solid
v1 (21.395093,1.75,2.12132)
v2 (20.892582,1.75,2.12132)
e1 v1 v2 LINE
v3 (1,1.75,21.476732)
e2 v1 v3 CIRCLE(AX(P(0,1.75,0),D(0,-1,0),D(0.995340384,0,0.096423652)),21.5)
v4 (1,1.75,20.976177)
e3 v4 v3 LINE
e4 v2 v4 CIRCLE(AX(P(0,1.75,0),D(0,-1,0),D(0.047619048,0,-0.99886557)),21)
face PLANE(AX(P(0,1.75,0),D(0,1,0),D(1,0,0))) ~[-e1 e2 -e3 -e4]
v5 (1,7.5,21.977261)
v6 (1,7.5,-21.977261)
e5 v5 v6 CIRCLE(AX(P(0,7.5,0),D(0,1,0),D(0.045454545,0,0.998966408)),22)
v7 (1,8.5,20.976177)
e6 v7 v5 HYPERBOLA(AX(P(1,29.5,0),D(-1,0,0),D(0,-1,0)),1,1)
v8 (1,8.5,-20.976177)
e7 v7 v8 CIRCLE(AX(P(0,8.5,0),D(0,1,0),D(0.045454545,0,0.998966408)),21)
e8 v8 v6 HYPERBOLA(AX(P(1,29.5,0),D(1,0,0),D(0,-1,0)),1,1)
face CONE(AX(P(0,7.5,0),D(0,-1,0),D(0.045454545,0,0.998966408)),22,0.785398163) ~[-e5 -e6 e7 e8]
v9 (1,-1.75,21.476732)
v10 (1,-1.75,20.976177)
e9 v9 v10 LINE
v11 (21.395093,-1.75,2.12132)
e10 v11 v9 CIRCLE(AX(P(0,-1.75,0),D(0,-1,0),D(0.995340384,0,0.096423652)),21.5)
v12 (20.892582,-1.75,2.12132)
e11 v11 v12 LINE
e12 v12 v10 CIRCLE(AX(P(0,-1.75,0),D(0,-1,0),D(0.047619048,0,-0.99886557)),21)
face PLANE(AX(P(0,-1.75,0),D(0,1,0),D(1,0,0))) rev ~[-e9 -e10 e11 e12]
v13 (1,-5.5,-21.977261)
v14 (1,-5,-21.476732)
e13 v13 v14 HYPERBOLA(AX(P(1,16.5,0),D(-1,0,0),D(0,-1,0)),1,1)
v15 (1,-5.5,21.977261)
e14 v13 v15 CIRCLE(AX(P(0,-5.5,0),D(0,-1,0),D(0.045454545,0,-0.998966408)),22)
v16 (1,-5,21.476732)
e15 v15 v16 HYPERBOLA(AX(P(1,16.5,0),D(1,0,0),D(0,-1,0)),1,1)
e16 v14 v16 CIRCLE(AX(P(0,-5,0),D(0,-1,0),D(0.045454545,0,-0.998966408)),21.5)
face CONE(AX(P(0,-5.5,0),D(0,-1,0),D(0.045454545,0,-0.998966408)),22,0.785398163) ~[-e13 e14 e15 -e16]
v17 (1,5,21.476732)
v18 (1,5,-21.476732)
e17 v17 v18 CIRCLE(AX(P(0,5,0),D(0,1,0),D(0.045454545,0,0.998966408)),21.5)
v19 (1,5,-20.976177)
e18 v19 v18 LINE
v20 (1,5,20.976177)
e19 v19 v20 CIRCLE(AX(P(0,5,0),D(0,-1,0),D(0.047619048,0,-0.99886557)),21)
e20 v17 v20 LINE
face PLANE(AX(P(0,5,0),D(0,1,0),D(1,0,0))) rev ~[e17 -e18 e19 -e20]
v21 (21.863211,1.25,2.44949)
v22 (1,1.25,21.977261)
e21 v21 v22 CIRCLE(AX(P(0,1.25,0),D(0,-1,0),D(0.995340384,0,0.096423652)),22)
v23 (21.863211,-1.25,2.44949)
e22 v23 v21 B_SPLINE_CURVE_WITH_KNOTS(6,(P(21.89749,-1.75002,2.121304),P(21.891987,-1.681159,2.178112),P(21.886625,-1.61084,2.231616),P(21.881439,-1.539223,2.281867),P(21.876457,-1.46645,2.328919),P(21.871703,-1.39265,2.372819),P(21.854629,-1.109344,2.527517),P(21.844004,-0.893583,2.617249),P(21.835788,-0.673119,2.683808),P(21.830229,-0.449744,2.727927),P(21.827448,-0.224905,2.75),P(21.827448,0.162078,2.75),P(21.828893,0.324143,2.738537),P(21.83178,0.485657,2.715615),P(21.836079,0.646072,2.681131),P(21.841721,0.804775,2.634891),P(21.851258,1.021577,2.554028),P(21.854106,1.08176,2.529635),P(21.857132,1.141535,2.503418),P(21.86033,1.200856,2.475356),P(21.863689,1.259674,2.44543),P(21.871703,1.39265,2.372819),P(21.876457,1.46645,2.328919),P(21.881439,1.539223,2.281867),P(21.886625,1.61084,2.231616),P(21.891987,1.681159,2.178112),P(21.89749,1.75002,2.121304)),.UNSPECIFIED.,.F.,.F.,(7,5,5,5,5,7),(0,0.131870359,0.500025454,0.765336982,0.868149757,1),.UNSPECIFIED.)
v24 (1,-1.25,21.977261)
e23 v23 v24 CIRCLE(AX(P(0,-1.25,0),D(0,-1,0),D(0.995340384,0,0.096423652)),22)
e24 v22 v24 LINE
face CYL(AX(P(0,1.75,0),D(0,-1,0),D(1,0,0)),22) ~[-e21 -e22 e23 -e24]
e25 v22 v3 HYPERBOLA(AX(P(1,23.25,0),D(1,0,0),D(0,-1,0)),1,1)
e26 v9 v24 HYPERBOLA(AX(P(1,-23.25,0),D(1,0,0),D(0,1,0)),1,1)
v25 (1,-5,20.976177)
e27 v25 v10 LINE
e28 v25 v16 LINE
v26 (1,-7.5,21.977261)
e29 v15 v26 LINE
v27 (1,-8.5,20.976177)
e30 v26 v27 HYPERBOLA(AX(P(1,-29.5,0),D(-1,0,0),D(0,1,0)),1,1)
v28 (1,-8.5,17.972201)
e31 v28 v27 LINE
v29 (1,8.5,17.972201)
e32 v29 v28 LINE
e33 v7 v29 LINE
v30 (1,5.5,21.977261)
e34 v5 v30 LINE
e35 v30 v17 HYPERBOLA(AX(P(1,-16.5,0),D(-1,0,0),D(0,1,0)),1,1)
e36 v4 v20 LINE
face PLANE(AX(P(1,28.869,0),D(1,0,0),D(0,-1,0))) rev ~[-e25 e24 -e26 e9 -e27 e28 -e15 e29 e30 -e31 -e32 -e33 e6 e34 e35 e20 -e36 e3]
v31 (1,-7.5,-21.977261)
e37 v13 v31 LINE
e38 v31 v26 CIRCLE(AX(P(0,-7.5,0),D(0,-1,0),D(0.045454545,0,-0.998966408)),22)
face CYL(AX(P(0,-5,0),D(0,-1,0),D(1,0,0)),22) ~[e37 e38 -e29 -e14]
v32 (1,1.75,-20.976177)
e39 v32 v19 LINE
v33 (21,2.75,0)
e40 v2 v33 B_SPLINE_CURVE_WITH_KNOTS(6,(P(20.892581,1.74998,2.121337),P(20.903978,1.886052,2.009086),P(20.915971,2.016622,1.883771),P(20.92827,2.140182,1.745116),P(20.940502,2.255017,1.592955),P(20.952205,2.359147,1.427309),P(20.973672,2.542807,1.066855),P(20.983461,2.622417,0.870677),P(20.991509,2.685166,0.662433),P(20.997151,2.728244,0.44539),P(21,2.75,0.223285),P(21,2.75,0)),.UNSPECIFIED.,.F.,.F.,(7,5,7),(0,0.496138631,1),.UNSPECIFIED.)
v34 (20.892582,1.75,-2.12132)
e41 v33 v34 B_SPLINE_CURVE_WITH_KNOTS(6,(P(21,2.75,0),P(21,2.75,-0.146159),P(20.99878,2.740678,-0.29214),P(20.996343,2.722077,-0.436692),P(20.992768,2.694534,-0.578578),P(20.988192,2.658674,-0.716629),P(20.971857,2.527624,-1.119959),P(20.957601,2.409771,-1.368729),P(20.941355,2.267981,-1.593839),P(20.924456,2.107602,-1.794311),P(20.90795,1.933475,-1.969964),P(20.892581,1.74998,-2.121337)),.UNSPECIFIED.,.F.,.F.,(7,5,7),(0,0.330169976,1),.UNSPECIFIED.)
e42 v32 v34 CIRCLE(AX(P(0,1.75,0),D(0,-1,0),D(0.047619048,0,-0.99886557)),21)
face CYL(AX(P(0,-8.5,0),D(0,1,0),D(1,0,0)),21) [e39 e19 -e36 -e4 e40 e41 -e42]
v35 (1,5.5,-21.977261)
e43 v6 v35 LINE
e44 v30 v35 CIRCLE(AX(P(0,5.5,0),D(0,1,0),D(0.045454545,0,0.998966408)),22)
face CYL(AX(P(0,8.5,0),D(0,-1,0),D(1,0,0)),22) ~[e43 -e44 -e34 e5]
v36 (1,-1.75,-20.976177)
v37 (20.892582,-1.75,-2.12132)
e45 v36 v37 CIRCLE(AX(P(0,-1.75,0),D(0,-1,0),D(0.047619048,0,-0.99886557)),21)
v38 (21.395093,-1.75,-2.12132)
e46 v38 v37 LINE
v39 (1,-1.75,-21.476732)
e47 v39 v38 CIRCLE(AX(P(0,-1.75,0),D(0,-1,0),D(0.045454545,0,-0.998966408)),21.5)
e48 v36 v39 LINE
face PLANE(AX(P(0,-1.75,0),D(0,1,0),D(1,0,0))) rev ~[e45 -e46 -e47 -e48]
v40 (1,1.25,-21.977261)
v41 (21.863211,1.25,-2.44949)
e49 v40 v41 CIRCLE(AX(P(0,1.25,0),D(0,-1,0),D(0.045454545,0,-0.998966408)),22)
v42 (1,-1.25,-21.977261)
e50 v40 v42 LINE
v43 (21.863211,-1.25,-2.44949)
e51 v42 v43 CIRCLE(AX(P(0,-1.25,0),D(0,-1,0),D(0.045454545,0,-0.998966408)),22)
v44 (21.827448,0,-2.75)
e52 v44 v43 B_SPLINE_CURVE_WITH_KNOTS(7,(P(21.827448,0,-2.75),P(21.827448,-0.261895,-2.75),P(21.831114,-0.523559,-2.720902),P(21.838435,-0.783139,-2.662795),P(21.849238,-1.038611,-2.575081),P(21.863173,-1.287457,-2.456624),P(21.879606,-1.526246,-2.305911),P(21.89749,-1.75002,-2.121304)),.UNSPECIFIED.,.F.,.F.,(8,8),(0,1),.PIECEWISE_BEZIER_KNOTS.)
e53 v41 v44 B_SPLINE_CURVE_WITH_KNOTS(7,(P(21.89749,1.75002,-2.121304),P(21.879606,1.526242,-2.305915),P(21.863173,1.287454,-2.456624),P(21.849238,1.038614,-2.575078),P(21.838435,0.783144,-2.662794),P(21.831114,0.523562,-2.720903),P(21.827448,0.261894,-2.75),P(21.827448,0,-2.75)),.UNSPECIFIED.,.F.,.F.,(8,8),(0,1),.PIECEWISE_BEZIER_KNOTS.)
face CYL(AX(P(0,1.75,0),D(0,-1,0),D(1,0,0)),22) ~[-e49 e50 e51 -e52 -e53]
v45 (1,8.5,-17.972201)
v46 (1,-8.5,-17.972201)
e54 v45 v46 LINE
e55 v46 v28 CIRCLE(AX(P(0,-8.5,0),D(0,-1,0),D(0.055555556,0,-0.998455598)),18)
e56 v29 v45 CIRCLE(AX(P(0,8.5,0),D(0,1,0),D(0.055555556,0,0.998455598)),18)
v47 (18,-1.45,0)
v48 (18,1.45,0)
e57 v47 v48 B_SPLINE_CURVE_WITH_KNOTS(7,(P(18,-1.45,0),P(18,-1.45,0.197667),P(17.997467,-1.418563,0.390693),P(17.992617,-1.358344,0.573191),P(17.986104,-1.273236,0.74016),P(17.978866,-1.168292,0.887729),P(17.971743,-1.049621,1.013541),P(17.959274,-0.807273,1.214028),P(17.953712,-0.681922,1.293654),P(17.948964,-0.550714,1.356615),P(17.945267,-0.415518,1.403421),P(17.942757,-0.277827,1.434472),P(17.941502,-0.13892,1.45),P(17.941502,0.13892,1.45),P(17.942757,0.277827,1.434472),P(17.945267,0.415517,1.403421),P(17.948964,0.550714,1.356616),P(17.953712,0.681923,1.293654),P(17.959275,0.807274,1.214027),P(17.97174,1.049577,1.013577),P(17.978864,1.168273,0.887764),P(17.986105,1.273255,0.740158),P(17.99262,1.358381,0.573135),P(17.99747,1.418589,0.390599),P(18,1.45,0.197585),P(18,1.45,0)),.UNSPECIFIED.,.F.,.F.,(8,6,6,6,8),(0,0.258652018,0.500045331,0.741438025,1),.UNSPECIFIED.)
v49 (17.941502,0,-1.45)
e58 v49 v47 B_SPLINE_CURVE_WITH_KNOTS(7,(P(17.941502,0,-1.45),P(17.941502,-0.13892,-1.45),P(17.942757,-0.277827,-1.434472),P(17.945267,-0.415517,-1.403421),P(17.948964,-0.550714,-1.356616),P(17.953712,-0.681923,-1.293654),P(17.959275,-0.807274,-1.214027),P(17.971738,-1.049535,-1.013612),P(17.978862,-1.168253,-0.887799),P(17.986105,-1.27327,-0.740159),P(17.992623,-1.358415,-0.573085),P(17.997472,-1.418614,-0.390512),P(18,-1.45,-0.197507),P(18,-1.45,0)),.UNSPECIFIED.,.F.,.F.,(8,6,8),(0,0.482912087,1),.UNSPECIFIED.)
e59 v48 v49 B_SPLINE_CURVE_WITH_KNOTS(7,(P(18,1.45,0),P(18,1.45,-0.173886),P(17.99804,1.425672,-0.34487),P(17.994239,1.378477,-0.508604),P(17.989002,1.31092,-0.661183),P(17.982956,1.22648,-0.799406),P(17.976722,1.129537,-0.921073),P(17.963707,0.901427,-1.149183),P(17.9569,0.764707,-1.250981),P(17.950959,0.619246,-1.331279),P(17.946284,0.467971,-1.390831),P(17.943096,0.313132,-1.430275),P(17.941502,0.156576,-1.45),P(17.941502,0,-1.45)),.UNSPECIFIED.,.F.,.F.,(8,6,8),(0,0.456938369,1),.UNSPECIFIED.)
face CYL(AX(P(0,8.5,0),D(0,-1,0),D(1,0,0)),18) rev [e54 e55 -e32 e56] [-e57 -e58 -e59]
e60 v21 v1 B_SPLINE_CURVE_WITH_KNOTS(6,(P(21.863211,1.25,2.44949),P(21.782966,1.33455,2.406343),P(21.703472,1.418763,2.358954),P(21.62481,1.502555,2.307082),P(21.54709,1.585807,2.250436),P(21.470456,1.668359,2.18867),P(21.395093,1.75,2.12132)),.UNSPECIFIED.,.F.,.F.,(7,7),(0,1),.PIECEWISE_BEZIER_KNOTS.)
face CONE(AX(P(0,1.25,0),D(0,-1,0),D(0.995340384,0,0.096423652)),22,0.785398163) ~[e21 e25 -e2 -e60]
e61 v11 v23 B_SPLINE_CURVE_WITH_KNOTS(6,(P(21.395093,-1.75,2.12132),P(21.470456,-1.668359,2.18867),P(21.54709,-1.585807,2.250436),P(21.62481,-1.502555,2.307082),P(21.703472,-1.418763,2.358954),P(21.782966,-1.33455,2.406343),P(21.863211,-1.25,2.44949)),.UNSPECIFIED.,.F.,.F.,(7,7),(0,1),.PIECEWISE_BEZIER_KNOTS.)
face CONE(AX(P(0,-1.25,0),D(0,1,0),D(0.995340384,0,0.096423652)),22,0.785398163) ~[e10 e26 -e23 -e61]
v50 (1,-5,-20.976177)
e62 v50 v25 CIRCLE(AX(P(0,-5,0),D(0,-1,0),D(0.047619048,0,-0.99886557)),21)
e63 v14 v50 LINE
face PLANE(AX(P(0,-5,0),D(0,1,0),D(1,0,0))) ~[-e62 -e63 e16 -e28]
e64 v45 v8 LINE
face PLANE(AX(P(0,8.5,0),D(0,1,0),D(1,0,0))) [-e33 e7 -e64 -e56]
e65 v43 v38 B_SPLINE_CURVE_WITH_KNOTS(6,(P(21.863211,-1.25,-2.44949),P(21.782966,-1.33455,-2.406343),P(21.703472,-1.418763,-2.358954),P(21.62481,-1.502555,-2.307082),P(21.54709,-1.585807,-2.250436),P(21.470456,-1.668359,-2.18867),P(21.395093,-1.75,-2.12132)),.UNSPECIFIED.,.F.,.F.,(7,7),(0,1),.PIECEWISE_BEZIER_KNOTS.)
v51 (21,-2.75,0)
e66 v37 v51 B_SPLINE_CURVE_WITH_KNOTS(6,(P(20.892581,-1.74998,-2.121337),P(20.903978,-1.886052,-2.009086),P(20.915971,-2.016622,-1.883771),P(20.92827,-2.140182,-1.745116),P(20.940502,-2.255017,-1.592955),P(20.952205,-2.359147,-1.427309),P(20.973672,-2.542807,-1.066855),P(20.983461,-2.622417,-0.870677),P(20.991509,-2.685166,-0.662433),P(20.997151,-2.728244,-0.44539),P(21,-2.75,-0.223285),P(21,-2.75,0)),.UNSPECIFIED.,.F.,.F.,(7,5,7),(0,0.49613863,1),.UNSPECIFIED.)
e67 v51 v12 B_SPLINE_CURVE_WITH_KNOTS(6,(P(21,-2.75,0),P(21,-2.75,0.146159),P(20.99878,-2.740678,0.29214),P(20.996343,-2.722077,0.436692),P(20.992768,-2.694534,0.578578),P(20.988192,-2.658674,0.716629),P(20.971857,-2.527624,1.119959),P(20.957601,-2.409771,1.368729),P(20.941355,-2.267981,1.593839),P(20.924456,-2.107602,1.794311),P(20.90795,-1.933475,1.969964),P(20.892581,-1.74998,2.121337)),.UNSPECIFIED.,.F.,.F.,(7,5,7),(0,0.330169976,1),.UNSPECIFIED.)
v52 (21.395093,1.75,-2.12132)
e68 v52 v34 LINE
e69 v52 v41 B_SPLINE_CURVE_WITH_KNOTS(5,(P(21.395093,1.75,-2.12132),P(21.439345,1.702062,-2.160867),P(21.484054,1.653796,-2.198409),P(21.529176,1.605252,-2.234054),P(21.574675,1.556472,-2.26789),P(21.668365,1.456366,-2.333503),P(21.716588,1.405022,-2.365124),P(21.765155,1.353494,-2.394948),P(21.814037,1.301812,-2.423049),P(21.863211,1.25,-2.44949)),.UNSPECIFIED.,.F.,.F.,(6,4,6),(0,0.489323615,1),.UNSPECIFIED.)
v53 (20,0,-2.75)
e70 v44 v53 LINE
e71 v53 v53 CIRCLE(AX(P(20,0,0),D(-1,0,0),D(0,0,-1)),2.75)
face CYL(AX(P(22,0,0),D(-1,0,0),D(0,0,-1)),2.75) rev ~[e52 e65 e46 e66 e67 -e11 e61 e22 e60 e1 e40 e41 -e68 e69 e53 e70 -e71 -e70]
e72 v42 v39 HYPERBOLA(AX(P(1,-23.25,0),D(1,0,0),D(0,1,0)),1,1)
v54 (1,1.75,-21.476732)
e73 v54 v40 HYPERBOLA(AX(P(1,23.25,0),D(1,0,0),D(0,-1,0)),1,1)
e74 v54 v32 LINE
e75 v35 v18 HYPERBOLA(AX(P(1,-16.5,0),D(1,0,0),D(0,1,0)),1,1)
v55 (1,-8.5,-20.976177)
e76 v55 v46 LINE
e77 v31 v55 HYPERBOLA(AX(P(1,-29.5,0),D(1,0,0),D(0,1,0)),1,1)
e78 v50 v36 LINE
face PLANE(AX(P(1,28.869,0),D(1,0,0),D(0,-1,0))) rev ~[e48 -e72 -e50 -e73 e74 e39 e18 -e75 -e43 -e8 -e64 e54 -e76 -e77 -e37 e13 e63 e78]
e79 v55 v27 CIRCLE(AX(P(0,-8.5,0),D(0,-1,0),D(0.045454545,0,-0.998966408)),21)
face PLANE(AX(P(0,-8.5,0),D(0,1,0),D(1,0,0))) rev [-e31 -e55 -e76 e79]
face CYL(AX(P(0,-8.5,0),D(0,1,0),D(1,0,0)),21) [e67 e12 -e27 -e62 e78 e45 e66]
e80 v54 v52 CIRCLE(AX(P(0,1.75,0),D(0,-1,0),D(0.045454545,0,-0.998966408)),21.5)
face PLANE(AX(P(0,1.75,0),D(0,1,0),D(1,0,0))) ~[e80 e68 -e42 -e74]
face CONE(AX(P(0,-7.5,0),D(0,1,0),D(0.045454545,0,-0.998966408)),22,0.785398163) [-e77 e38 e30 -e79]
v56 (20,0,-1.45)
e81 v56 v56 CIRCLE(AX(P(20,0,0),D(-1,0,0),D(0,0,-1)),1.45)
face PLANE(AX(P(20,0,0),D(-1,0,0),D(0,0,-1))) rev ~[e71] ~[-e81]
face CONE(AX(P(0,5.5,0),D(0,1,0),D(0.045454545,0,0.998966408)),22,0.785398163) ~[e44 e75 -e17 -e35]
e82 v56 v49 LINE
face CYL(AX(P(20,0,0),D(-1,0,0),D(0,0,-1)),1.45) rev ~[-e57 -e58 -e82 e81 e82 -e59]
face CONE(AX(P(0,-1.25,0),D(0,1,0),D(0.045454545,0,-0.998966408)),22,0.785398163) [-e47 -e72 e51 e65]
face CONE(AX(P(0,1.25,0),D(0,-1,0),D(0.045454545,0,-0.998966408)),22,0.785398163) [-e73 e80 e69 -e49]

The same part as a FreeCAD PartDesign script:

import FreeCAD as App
import Part
import Sketcher

V = App.Vector


def edges_at(feature, points):
    """Names of the edges that pass closest to the given points."""
    edges = feature.Shape.Edges
    near = lambda p: min(range(len(edges)), key=lambda i: edges[i].distToShape(Part.Vertex(*p))[0])
    return sorted({f"Edge{near(p) + 1}" for p in points})

doc = App.newDocument("Part")
body = doc.addObject("PartDesign::Body", "Body")

# Sketch on XY plane
sketch1 = body.newObject("Sketcher::SketchObject", "Sketch")
sketch1.AttachmentSupport = (doc.getObject("XY_Plane"), [""])
sketch1.MapMode = "FlatFace"
sketch1.addGeometry(Part.LineSegment(V(18, -8.5, 0), V(22, -8.5, 0)), False)
sketch1.addGeometry(Part.LineSegment(V(22, -8.5, 0), V(22, -5, 0)), False)
sketch1.addGeometry(Part.LineSegment(V(22, -5, 0), V(21, -5, 0)), False)
sketch1.addGeometry(Part.LineSegment(V(21, -5, 0), V(21, -1.75, 0)), False)
sketch1.addGeometry(Part.LineSegment(V(21, -1.75, 0), V(22, -1.75, 0)), False)
sketch1.addGeometry(Part.LineSegment(V(22, -1.75, 0), V(22, 1.75, 0)), False)
sketch1.addGeometry(Part.LineSegment(V(22, 1.75, 0), V(21, 1.75, 0)), False)
sketch1.addGeometry(Part.LineSegment(V(21, 1.75, 0), V(21, 5, 0)), False)
sketch1.addGeometry(Part.LineSegment(V(21, 5, 0), V(22, 5, 0)), False)
sketch1.addGeometry(Part.LineSegment(V(22, 5, 0), V(22, 8.5, 0)), False)
sketch1.addGeometry(Part.LineSegment(V(22, 8.5, 0), V(18, 8.5, 0)), False)
sketch1.addGeometry(Part.LineSegment(V(18, 8.5, 0), V(18, -8.5, 0)), False)
sketch1.addConstraint(Sketcher.Constraint("Coincident", 0, 2, 1, 1))
sketch1.addConstraint(Sketcher.Constraint("Coincident", 1, 2, 2, 1))
sketch1.addConstraint(Sketcher.Constraint("Coincident", 2, 2, 3, 1))
sketch1.addConstraint(Sketcher.Constraint("Coincident", 3, 2, 4, 1))
sketch1.addConstraint(Sketcher.Constraint("Coincident", 4, 2, 5, 1))
sketch1.addConstraint(Sketcher.Constraint("Coincident", 5, 2, 6, 1))
sketch1.addConstraint(Sketcher.Constraint("Coincident", 6, 2, 7, 1))
sketch1.addConstraint(Sketcher.Constraint("Coincident", 7, 2, 8, 1))
sketch1.addConstraint(Sketcher.Constraint("Coincident", 8, 2, 9, 1))
sketch1.addConstraint(Sketcher.Constraint("Coincident", 9, 2, 10, 1))
sketch1.addConstraint(Sketcher.Constraint("Coincident", 10, 2, 11, 1))
sketch1.addConstraint(Sketcher.Constraint("Coincident", 11, 2, 0, 1))
sketch1.addConstraint(Sketcher.Constraint("Horizontal", 0))
sketch1.addConstraint(Sketcher.Constraint("Vertical", 1))
sketch1.addConstraint(Sketcher.Constraint("Horizontal", 2))
sketch1.addConstraint(Sketcher.Constraint("Vertical", 3))
sketch1.addConstraint(Sketcher.Constraint("Horizontal", 4))
sketch1.addConstraint(Sketcher.Constraint("Vertical", 5))
sketch1.addConstraint(Sketcher.Constraint("Horizontal", 6))
sketch1.addConstraint(Sketcher.Constraint("Vertical", 7))
sketch1.addConstraint(Sketcher.Constraint("Horizontal", 8))
sketch1.addConstraint(Sketcher.Constraint("Vertical", 9))
sketch1.addConstraint(Sketcher.Constraint("Horizontal", 10))
sketch1.addConstraint(Sketcher.Constraint("Vertical", 11))
sketch1.addConstraint(Sketcher.Constraint("Symmetric", 3, 2, 6, 2, -1))
sketch1.addConstraint(Sketcher.Constraint("Symmetric", 1, 2, 8, 2, -1))
sketch1.addConstraint(Sketcher.Constraint("Vertical", 1, 2, 4, 2))
sketch1.addConstraint(Sketcher.Constraint("Equal", 1, 5))
sketch1.addConstraint(Sketcher.Constraint("Equal", 5, 9))
sketch1.addConstraint(Sketcher.Constraint("DistanceX", 2, 2, 2, 1, 1.0))
sketch1.addConstraint(Sketcher.Constraint("DistanceY", 11, 2, 11, 1, 17.0))
sketch1.addConstraint(Sketcher.Constraint("DistanceY", 1, 1, 1, 2, 3.5))
sketch1.addConstraint(Sketcher.Constraint("DistanceX", 0, 1, 0, 2, 4.0))
sketch1.addConstraint(Sketcher.Constraint("DistanceX", -1, 1, 0, 2, 22.0))
revolution = body.newObject("PartDesign::Revolution", "Revolution")
revolution.Profile = sketch1
revolution.ReferenceAxis = (sketch1, ["V_Axis"])
revolution.Angle = 360

# Sketch on XY plane
sketch2 = body.newObject("Sketcher::SketchObject", "Sketch001")
sketch2.AttachmentSupport = (doc.getObject("XY_Plane"), [""])
sketch2.MapMode = "FlatFace"
sketch2.addGeometry(Part.LineSegment(V(1, -27.8544, 0), V(1, 28.869, 0)), False)
sketch2.addGeometry(Part.LineSegment(V(1, 28.869, 0), V(-32.6044, 28.869, 0)), False)
sketch2.addGeometry(Part.LineSegment(V(-32.6044, 28.869, 0), V(-32.6044, -27.8544, 0)), False)
sketch2.addGeometry(Part.LineSegment(V(-32.6044, -27.8544, 0), V(1, -27.8544, 0)), False)
sketch2.addConstraint(Sketcher.Constraint("Coincident", 0, 2, 1, 1))
sketch2.addConstraint(Sketcher.Constraint("Coincident", 1, 2, 2, 1))
sketch2.addConstraint(Sketcher.Constraint("Coincident", 2, 2, 3, 1))
sketch2.addConstraint(Sketcher.Constraint("Coincident", 3, 2, 0, 1))
sketch2.addConstraint(Sketcher.Constraint("Vertical", 0))
sketch2.addConstraint(Sketcher.Constraint("Horizontal", 1))
sketch2.addConstraint(Sketcher.Constraint("Vertical", 2))
sketch2.addConstraint(Sketcher.Constraint("Horizontal", 3))
sketch2.addConstraint(Sketcher.Constraint("DistanceX", -1, 1, 0, 2, 1.0))
sketch2.addConstraint(Sketcher.Constraint("DistanceX", 1, 2, 1, 1, 33.6044))
sketch2.addConstraint(Sketcher.Constraint("DistanceY", 0, 1, 0, 2, 56.7234))
sketch2.addConstraint(Sketcher.Constraint("DistanceY", -1, 1, 0, 2, 28.869))
pocket1 = body.newObject("PartDesign::Pocket", "Pocket")
pocket1.Profile = sketch2
pocket1.Type = "ThroughAll"
pocket1.Midplane = True

# Sketch on YZ plane
sketch3 = body.newObject("Sketcher::SketchObject", "Sketch002")
sketch3.AttachmentSupport = (doc.getObject("YZ_Plane"), [""])
sketch3.MapMode = "FlatFace"
sketch3.AttachmentOffset = App.Placement(V(0, 0, 22), App.Rotation())
sketch3.addGeometry(Part.Circle(V(0, 0, 0), V(0, 0, 1), 1.45), False)
sketch3.addConstraint(Sketcher.Constraint("Coincident", 0, 3, -1, 1))
sketch3.addConstraint(Sketcher.Constraint("Diameter", 0, 2.9))
doc.recompute()
hole = body.newObject("PartDesign::Hole", "Hole")
hole.Profile = sketch3
hole.ThreadType = "None"
hole.Diameter = 2.9
hole.DepthType = "Dimension"
hole.Depth = 5
hole.DrillPoint = "Flat"
hole.HoleCutType = "Counterbore"
hole.HoleCutDiameter = 5.5
hole.HoleCutDepth = 2
doc.recompute()

chamfer = body.newObject("PartDesign::Chamfer", "Chamfer")
chamfer.Base = (hole, edges_at(hole, [
    (15.154, -1.75, 15.949),
    (15.154, -1.75, -15.949),
    (15.154, 1.75, 15.949),
    (15.154, 1.75, -15.949),
    (22, 5, 0),
    (22, -5, 0),
]))
chamfer.Size = 0.5
doc.recompute()

chamfer2 = body.newObject("PartDesign::Chamfer", "Chamfer001")
chamfer2.Base = (chamfer, edges_at(chamfer, [(22, 8.5, 0), (22, -8.5, 0)]))
chamfer2.Size = 1

doc.recompute()
